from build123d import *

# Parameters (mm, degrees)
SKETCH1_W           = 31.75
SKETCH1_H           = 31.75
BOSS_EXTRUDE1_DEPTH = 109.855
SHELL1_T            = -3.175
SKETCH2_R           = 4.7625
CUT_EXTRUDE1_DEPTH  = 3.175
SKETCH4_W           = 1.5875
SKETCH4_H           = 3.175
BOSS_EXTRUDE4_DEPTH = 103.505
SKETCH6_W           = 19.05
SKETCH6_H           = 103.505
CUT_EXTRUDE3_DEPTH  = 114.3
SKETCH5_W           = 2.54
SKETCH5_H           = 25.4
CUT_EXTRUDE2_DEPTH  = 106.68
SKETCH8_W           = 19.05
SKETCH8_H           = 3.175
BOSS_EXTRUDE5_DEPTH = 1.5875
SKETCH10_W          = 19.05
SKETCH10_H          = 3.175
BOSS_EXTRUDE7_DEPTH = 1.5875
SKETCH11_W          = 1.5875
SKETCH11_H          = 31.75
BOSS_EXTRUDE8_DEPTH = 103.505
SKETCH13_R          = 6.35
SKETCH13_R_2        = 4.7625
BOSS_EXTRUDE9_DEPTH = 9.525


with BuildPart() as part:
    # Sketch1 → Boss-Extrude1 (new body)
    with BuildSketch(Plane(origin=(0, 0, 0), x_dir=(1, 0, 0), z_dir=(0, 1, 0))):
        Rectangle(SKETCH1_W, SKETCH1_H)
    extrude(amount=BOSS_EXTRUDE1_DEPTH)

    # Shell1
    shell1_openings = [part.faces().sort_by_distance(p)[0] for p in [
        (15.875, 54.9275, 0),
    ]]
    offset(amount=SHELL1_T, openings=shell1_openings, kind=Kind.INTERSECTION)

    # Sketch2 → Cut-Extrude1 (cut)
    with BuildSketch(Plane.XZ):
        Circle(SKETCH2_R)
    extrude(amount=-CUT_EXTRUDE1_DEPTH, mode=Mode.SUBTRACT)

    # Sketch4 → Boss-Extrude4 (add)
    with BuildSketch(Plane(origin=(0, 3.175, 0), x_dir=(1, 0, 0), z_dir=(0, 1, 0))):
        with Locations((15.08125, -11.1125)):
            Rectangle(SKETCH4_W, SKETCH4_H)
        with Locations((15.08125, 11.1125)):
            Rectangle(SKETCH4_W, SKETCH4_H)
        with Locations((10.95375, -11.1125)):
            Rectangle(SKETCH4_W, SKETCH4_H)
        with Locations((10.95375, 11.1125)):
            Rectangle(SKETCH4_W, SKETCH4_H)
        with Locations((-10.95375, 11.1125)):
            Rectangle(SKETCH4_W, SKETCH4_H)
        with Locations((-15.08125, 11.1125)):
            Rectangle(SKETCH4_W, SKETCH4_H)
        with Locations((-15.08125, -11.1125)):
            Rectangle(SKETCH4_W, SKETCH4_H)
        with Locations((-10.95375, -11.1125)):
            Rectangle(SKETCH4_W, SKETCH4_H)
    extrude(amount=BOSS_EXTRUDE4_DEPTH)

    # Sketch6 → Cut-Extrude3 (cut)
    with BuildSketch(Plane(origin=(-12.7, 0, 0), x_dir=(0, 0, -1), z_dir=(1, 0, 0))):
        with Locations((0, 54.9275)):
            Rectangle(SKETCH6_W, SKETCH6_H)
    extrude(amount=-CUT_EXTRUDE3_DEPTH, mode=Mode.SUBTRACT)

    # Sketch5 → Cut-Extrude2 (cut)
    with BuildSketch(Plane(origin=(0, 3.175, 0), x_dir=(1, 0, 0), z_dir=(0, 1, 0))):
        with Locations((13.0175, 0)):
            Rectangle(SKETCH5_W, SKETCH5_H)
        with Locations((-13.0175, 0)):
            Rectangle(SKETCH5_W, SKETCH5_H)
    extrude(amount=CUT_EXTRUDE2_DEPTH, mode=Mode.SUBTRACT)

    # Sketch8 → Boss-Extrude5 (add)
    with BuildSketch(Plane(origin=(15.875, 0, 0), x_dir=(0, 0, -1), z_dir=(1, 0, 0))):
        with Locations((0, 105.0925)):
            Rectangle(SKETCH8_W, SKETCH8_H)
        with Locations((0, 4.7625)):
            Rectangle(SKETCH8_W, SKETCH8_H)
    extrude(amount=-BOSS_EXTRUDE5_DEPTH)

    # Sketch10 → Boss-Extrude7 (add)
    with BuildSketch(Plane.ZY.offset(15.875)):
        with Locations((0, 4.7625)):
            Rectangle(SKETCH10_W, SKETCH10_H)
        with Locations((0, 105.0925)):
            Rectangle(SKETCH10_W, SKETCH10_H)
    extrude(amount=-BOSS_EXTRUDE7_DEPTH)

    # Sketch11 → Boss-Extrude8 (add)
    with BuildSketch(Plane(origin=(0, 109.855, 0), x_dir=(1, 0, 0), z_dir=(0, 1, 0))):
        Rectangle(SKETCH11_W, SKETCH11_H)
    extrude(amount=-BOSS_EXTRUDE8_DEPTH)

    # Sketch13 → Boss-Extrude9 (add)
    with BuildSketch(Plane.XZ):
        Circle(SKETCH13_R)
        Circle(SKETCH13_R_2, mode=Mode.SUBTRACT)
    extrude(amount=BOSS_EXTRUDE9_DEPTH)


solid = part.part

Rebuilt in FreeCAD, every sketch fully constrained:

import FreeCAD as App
import Part
import Sketcher
Q = App.Units.Quantity


def faces_at(feature, points):
    """Names of the faces that lie closest to the given points."""
    faces = feature.Shape.Faces
    near = lambda p: min(range(len(faces)), key=lambda i: faces[i].distToShape(Part.Vertex(*p))[0])
    return sorted({f"Face{near(p) + 1}" for p in points})

doc = App.newDocument("Part")
body = doc.addObject("PartDesign::Body", "Body")

sketch1 = body.newObject("Sketcher::SketchObject", "Sketch")
sketch1.AttachmentSupport = (doc.getObject("XZ_Plane"), [""])
sketch1.MapMode = "FlatFace"
sketch1.addGeometry(Part.LineSegment(App.Vector(-16, -16, 0), App.Vector(-16, 16, 0)), False)
sketch1.addGeometry(Part.LineSegment(App.Vector(-16, 16, 0), App.Vector(16, 16, 0)), False)
sketch1.addGeometry(Part.LineSegment(App.Vector(16, 16, 0), App.Vector(16, -16, 0)), False)
sketch1.addGeometry(Part.LineSegment(App.Vector(16, -16, 0), App.Vector(-16, -16, 0)), False)
sketch1.addConstraint(Sketcher.Constraint("Coincident", 0, 2, 1, 1))
sketch1.addConstraint(Sketcher.Constraint("Coincident", 1, 2, 2, 1))
sketch1.addConstraint(Sketcher.Constraint("Coincident", 2, 2, 3, 1))
sketch1.addConstraint(Sketcher.Constraint("Coincident", 3, 2, 0, 1))
sketch1.addConstraint(Sketcher.Constraint("Vertical", 0))
sketch1.addConstraint(Sketcher.Constraint("Horizontal", 1))
sketch1.addConstraint(Sketcher.Constraint("Vertical", 2))
sketch1.addConstraint(Sketcher.Constraint("Horizontal", 3))
sketch1.addConstraint(Sketcher.Constraint("Symmetric", 0, 2, 2, 2, -1, 1))
sketch1.addConstraint(Sketcher.Constraint("Equal", 3, 0))
sketch1.addConstraint(Sketcher.Constraint("DistanceX", 1, 1, 1, 2, Q("1.25 in")))
pad1 = body.newObject("PartDesign::Pad", "Pad")
pad1.Profile = sketch1
pad1.Length = Q("4.325 in")
pad1.Reversed = True
doc.recompute()

thickness = body.newObject("PartDesign::Thickness", "Thickness")
thickness.Base = (pad1, faces_at(pad1, [(15.875, 54.928, 0)]))
thickness.Value = Q("0.125 in")
thickness.Reversed = True
thickness.Join = "Intersection"

sketch2 = body.newObject("Sketcher::SketchObject", "Sketch001")
sketch2.AttachmentSupport = (doc.getObject("XZ_Plane"), [""])
sketch2.MapMode = "FlatFace"
sketch2.addGeometry(Part.Circle(App.Vector(0, 0, 0), App.Vector(0, 0, 1), 4.8), False)
sketch2.addConstraint(Sketcher.Constraint("Coincident", 0, 3, -1, 1))
sketch2.addConstraint(Sketcher.Constraint("Diameter", 0, Q("0.375 in")))
pocket1 = body.newObject("PartDesign::Pocket", "Pocket")
pocket1.Profile = sketch2
pocket1.Length = Q("0.125 in")

sketch3 = body.newObject("Sketcher::SketchObject", "Sketch002")
sketch3.AttachmentSupport = (doc.getObject("XZ_Plane"), [""])
sketch3.MapMode = "FlatFace"
sketch3.AttachmentOffset = App.Placement(App.Vector(0, 0, -0.125 * 25.4), App.Rotation())
sketch3.addGeometry(Part.LineSegment(App.Vector(14.3, 9.5, 0), App.Vector(14.3, 12.7, 0)), False)
sketch3.addGeometry(Part.LineSegment(App.Vector(14.3, 12.7, 0), App.Vector(15.9, 12.7, 0)), False)
sketch3.addGeometry(Part.LineSegment(App.Vector(15.9, 12.7, 0), App.Vector(15.9, 9.5, 0)), False)
sketch3.addGeometry(Part.LineSegment(App.Vector(15.9, 9.5, 0), App.Vector(14.3, 9.5, 0)), False)
sketch3.addGeometry(Part.LineSegment(App.Vector(14.3, -12.7, 0), App.Vector(14.3, -9.5, 0)), False)
sketch3.addGeometry(Part.LineSegment(App.Vector(14.3, -9.5, 0), App.Vector(15.9, -9.5, 0)), False)
sketch3.addGeometry(Part.LineSegment(App.Vector(15.9, -9.5, 0), App.Vector(15.9, -12.7, 0)), False)
sketch3.addGeometry(Part.LineSegment(App.Vector(15.9, -12.7, 0), App.Vector(14.3, -12.7, 0)), False)
sketch3.addGeometry(Part.LineSegment(App.Vector(10.2, 9.5, 0), App.Vector(10.2, 12.7, 0)), False)
sketch3.addGeometry(Part.LineSegment(App.Vector(10.2, 12.7, 0), App.Vector(11.7, 12.7, 0)), False)
sketch3.addGeometry(Part.LineSegment(App.Vector(11.7, 12.7, 0), App.Vector(11.7, 9.5, 0)), False)
sketch3.addGeometry(Part.LineSegment(App.Vector(11.7, 9.5, 0), App.Vector(10.2, 9.5, 0)), False)
sketch3.addGeometry(Part.LineSegment(App.Vector(10.2, -12.7, 0), App.Vector(10.2, -9.5, 0)), False)
sketch3.addGeometry(Part.LineSegment(App.Vector(10.2, -9.5, 0), App.Vector(11.7, -9.5, 0)), False)
sketch3.addGeometry(Part.LineSegment(App.Vector(11.7, -9.5, 0), App.Vector(11.7, -12.7, 0)), False)
sketch3.addGeometry(Part.LineSegment(App.Vector(11.7, -12.7, 0), App.Vector(10.2, -12.7, 0)), False)
sketch3.addGeometry(Part.LineSegment(App.Vector(-11.7, -12.7, 0), App.Vector(-11.7, -9.5, 0)), False)
sketch3.addGeometry(Part.LineSegment(App.Vector(-11.7, -9.5, 0), App.Vector(-10.2, -9.5, 0)), False)
sketch3.addGeometry(Part.LineSegment(App.Vector(-10.2, -9.5, 0), App.Vector(-10.2, -12.7, 0)), False)
sketch3.addGeometry(Part.LineSegment(App.Vector(-10.2, -12.7, 0), App.Vector(-11.7, -12.7, 0)), False)
sketch3.addGeometry(Part.LineSegment(App.Vector(-15.9, -12.7, 0), App.Vector(-15.9, -9.5, 0)), False)
sketch3.addGeometry(Part.LineSegment(App.Vector(-15.9, -9.5, 0), App.Vector(-14.3, -9.5, 0)), False)
sketch3.addGeometry(Part.LineSegment(App.Vector(-14.3, -9.5, 0), App.Vector(-14.3, -12.7, 0)), False)
sketch3.addGeometry(Part.LineSegment(App.Vector(-14.3, -12.7, 0), App.Vector(-15.9, -12.7, 0)), False)
sketch3.addGeometry(Part.LineSegment(App.Vector(-15.9, 9.5, 0), App.Vector(-15.9, 12.7, 0)), False)
sketch3.addGeometry(Part.LineSegment(App.Vector(-15.9, 12.7, 0), App.Vector(-14.3, 12.7, 0)), False)
sketch3.addGeometry(Part.LineSegment(App.Vector(-14.3, 12.7, 0), App.Vector(-14.3, 9.5, 0)), False)
sketch3.addGeometry(Part.LineSegment(App.Vector(-14.3, 9.5, 0), App.Vector(-15.9, 9.5, 0)), False)
sketch3.addGeometry(Part.LineSegment(App.Vector(-11.7, 9.5, 0), App.Vector(-11.7, 12.7, 0)), False)
sketch3.addGeometry(Part.LineSegment(App.Vector(-11.7, 12.7, 0), App.Vector(-10.2, 12.7, 0)), False)
sketch3.addGeometry(Part.LineSegment(App.Vector(-10.2, 12.7, 0), App.Vector(-10.2, 9.5, 0)), False)
sketch3.addGeometry(Part.LineSegment(App.Vector(-10.2, 9.5, 0), App.Vector(-11.7, 9.5, 0)), False)
sketch3.addConstraint(Sketcher.Constraint("Coincident", 0, 2, 1, 1))
sketch3.addConstraint(Sketcher.Constraint("Coincident", 1, 2, 2, 1))
sketch3.addConstraint(Sketcher.Constraint("Coincident", 2, 2, 3, 1))
sketch3.addConstraint(Sketcher.Constraint("Coincident", 3, 2, 0, 1))
sketch3.addConstraint(Sketcher.Constraint("Coincident", 4, 2, 5, 1))
sketch3.addConstraint(Sketcher.Constraint("Coincident", 5, 2, 6, 1))
sketch3.addConstraint(Sketcher.Constraint("Coincident", 6, 2, 7, 1))
sketch3.addConstraint(Sketcher.Constraint("Coincident", 7, 2, 4, 1))
sketch3.addConstraint(Sketcher.Constraint("Coincident", 8, 2, 9, 1))
sketch3.addConstraint(Sketcher.Constraint("Coincident", 9, 2, 10, 1))
sketch3.addConstraint(Sketcher.Constraint("Coincident", 10, 2, 11, 1))
sketch3.addConstraint(Sketcher.Constraint("Coincident", 11, 2, 8, 1))
sketch3.addConstraint(Sketcher.Constraint("Coincident", 12, 2, 13, 1))
sketch3.addConstraint(Sketcher.Constraint("Coincident", 13, 2, 14, 1))
sketch3.addConstraint(Sketcher.Constraint("Coincident", 14, 2, 15, 1))
sketch3.addConstraint(Sketcher.Constraint("Coincident", 15, 2, 12, 1))
sketch3.addConstraint(Sketcher.Constraint("Coincident", 16, 2, 17, 1))
sketch3.addConstraint(Sketcher.Constraint("Coincident", 17, 2, 18, 1))
sketch3.addConstraint(Sketcher.Constraint("Coincident", 18, 2, 19, 1))
sketch3.addConstraint(Sketcher.Constraint("Coincident", 19, 2, 16, 1))
sketch3.addConstraint(Sketcher.Constraint("Coincident", 20, 2, 21, 1))
sketch3.addConstraint(Sketcher.Constraint("Coincident", 21, 2, 22, 1))
sketch3.addConstraint(Sketcher.Constraint("Coincident", 22, 2, 23, 1))
sketch3.addConstraint(Sketcher.Constraint("Coincident", 23, 2, 20, 1))
sketch3.addConstraint(Sketcher.Constraint("Coincident", 24, 2, 25, 1))
sketch3.addConstraint(Sketcher.Constraint("Coincident", 25, 2, 26, 1))
sketch3.addConstraint(Sketcher.Constraint("Coincident", 26, 2, 27, 1))
sketch3.addConstraint(Sketcher.Constraint("Coincident", 27, 2, 24, 1))
sketch3.addConstraint(Sketcher.Constraint("Coincident", 28, 2, 29, 1))
sketch3.addConstraint(Sketcher.Constraint("Coincident", 29, 2, 30, 1))
sketch3.addConstraint(Sketcher.Constraint("Coincident", 30, 2, 31, 1))
sketch3.addConstraint(Sketcher.Constraint("Coincident", 31, 2, 28, 1))
sketch3.addConstraint(Sketcher.Constraint("Vertical", 0))
sketch3.addConstraint(Sketcher.Constraint("Horizontal", 1))
sketch3.addConstraint(Sketcher.Constraint("Vertical", 2))
sketch3.addConstraint(Sketcher.Constraint("Horizontal", 3))
sketch3.addConstraint(Sketcher.Constraint("Vertical", 4))
sketch3.addConstraint(Sketcher.Constraint("Horizontal", 5))
sketch3.addConstraint(Sketcher.Constraint("Vertical", 6))
sketch3.addConstraint(Sketcher.Constraint("Horizontal", 7))
sketch3.addConstraint(Sketcher.Constraint("Vertical", 8))
sketch3.addConstraint(Sketcher.Constraint("Horizontal", 9))
sketch3.addConstraint(Sketcher.Constraint("Vertical", 10))
sketch3.addConstraint(Sketcher.Constraint("Horizontal", 11))
sketch3.addConstraint(Sketcher.Constraint("Vertical", 12))
sketch3.addConstraint(Sketcher.Constraint("Horizontal", 13))
sketch3.addConstraint(Sketcher.Constraint("Vertical", 14))
sketch3.addConstraint(Sketcher.Constraint("Horizontal", 15))
sketch3.addConstraint(Sketcher.Constraint("Vertical", 16))
sketch3.addConstraint(Sketcher.Constraint("Horizontal", 17))
sketch3.addConstraint(Sketcher.Constraint("Vertical", 18))
sketch3.addConstraint(Sketcher.Constraint("Horizontal", 19))
sketch3.addConstraint(Sketcher.Constraint("Vertical", 20))
sketch3.addConstraint(Sketcher.Constraint("Horizontal", 21))
sketch3.addConstraint(Sketcher.Constraint("Vertical", 22))
sketch3.addConstraint(Sketcher.Constraint("Horizontal", 23))
sketch3.addConstraint(Sketcher.Constraint("Vertical", 24))
sketch3.addConstraint(Sketcher.Constraint("Horizontal", 25))
sketch3.addConstraint(Sketcher.Constraint("Vertical", 26))
sketch3.addConstraint(Sketcher.Constraint("Horizontal", 27))
sketch3.addConstraint(Sketcher.Constraint("Vertical", 28))
sketch3.addConstraint(Sketcher.Constraint("Horizontal", 29))
sketch3.addConstraint(Sketcher.Constraint("Vertical", 30))
sketch3.addConstraint(Sketcher.Constraint("Horizontal", 31))
sketch3.addConstraint(Sketcher.Constraint("Symmetric", 10, 2, 16, 2, -1, 1))
sketch3.addConstraint(Sketcher.Constraint("Symmetric", 8, 2, 18, 2, -1, 1))
sketch3.addConstraint(Sketcher.Constraint("Symmetric", 2, 2, 20, 2, -1, 1))
sketch3.addConstraint(Sketcher.Constraint("Symmetric", 0, 2, 22, 2, -1, 1))
sketch3.addConstraint(Sketcher.Constraint("Symmetric", 6, 2, 24, 2, -1, 1))
sketch3.addConstraint(Sketcher.Constraint("Symmetric", 4, 2, 26, 2, -1, 1))
sketch3.addConstraint(Sketcher.Constraint("Symmetric", 14, 2, 28, 2, -1, 1))
sketch3.addConstraint(Sketcher.Constraint("Symmetric", 12, 2, 30, 2, -1, 1))
sketch3.addConstraint(Sketcher.Constraint("Symmetric", 13, 2, 16, 2, -2))
sketch3.addConstraint(Sketcher.Constraint("Symmetric", 15, 2, 18, 2, -2))
sketch3.addConstraint(Sketcher.Constraint("Symmetric", 5, 2, 20, 2, -2))
sketch3.addConstraint(Sketcher.Constraint("Symmetric", 7, 2, 22, 2, -2))
sketch3.addConstraint(Sketcher.Constraint("Horizontal", 1, 2, 8, 2))
sketch3.addConstraint(Sketcher.Constraint("Horizontal", 3, 2, 10, 2))
sketch3.addConstraint(Sketcher.Constraint("Equal", 7, 9))
sketch3.addConstraint(Sketcher.Constraint("DistanceY", 6, 2, 1, 2, Q("1 in")))
sketch3.addConstraint(Sketcher.Constraint("DistanceX", -1, 1, 8, 2, Q("0.4 in")))
sketch3.addConstraint(Sketcher.Constraint("DistanceX", 9, 2, 0, 2, Q("0.1 in")))
sketch3.addConstraint(Sketcher.Constraint("DistanceX", 1, 1, 1, 2, Q("0.0625 in")))
sketch3.addConstraint(Sketcher.Constraint("DistanceY", 0, 1, 0, 2, Q("0.125 in")))
pad2 = body.newObject("PartDesign::Pad", "Pad001")
pad2.Profile = sketch3
pad2.Length = Q("4.075 in")
pad2.Reversed = True

sketch4 = body.newObject("Sketcher::SketchObject", "Sketch003")
sketch4.AttachmentSupport = (doc.getObject("YZ_Plane"), [""])
sketch4.MapMode = "FlatFace"
sketch4.AttachmentOffset = App.Placement(App.Vector(0, 0, -0.5 * 25.4), App.Rotation())
sketch4.addGeometry(Part.LineSegment(App.Vector(107, 10, 0), App.Vector(3, 10, 0)), False)
sketch4.addGeometry(Part.LineSegment(App.Vector(3, 10, 0), App.Vector(3, -10, 0)), False)
sketch4.addGeometry(Part.LineSegment(App.Vector(3, -10, 0), App.Vector(107, -10, 0)), False)
sketch4.addGeometry(Part.LineSegment(App.Vector(107, -10, 0), App.Vector(107, 10, 0)), False)
sketch4.addConstraint(Sketcher.Constraint("Coincident", 0, 2, 1, 1))
sketch4.addConstraint(Sketcher.Constraint("Coincident", 1, 2, 2, 1))
sketch4.addConstraint(Sketcher.Constraint("Coincident", 2, 2, 3, 1))
sketch4.addConstraint(Sketcher.Constraint("Coincident", 3, 2, 0, 1))
sketch4.addConstraint(Sketcher.Constraint("Horizontal", 0))
sketch4.addConstraint(Sketcher.Constraint("Vertical", 1))
sketch4.addConstraint(Sketcher.Constraint("Horizontal", 2))
sketch4.addConstraint(Sketcher.Constraint("Vertical", 3))
sketch4.addConstraint(Sketcher.Constraint("DistanceY", 1, 2, 1, 1, Q("0.75 in")))
sketch4.addConstraint(Sketcher.Constraint("DistanceX", -1, 1, 2, 2, Q("4.2 in")))
sketch4.addConstraint(Sketcher.Constraint("DistanceX", 0, 2, 0, 1, Q("4.075 in")))
sketch4.addConstraint(Sketcher.Constraint("DistanceY", -1, 1, 0, 2, Q("0.375 in")))
pocket2 = body.newObject("PartDesign::Pocket", "Pocket001")
pocket2.Profile = sketch4
pocket2.Length = Q("4.5 in")

sketch5 = body.newObject("Sketcher::SketchObject", "Sketch004")
sketch5.AttachmentSupport = (doc.getObject("XZ_Plane"), [""])
sketch5.MapMode = "FlatFace"
sketch5.AttachmentOffset = App.Placement(App.Vector(0, 0, -0.125 * 25.4), App.Rotation())
sketch5.addGeometry(Part.LineSegment(App.Vector(11.7, -12.7, 0), App.Vector(11.7, 12.7, 0)), False)
sketch5.addGeometry(Part.LineSegment(App.Vector(11.7, 12.7, 0), App.Vector(14.3, 12.7, 0)), False)
sketch5.addGeometry(Part.LineSegment(App.Vector(14.3, 12.7, 0), App.Vector(14.3, -12.7, 0)), False)
sketch5.addGeometry(Part.LineSegment(App.Vector(14.3, -12.7, 0), App.Vector(11.7, -12.7, 0)), False)
sketch5.addGeometry(Part.LineSegment(App.Vector(-14.3, -12.7, 0), App.Vector(-14.3, 12.7, 0)), False)
sketch5.addGeometry(Part.LineSegment(App.Vector(-14.3, 12.7, 0), App.Vector(-11.7, 12.7, 0)), False)
sketch5.addGeometry(Part.LineSegment(App.Vector(-11.7, 12.7, 0), App.Vector(-11.7, -12.7, 0)), False)
sketch5.addGeometry(Part.LineSegment(App.Vector(-11.7, -12.7, 0), App.Vector(-14.3, -12.7, 0)), False)
sketch5.addConstraint(Sketcher.Constraint("Coincident", 0, 2, 1, 1))
sketch5.addConstraint(Sketcher.Constraint("Coincident", 1, 2, 2, 1))
sketch5.addConstraint(Sketcher.Constraint("Coincident", 2, 2, 3, 1))
sketch5.addConstraint(Sketcher.Constraint("Coincident", 3, 2, 0, 1))
sketch5.addConstraint(Sketcher.Constraint("Coincident", 4, 2, 5, 1))
sketch5.addConstraint(Sketcher.Constraint("Coincident", 5, 2, 6, 1))
sketch5.addConstraint(Sketcher.Constraint("Coincident", 6, 2, 7, 1))
sketch5.addConstraint(Sketcher.Constraint("Coincident", 7, 2, 4, 1))
sketch5.addConstraint(Sketcher.Constraint("Vertical", 0))
sketch5.addConstraint(Sketcher.Constraint("Horizontal", 1))
sketch5.addConstraint(Sketcher.Constraint("Vertical", 2))
sketch5.addConstraint(Sketcher.Constraint("Horizontal", 3))
sketch5.addConstraint(Sketcher.Constraint("Vertical", 4))
sketch5.addConstraint(Sketcher.Constraint("Horizontal", 5))
sketch5.addConstraint(Sketcher.Constraint("Vertical", 6))
sketch5.addConstraint(Sketcher.Constraint("Horizontal", 7))
sketch5.addConstraint(Sketcher.Constraint("Symmetric", 2, 2, 4, 2, -1, 1))
sketch5.addConstraint(Sketcher.Constraint("Symmetric", 0, 2, 6, 2, -1, 1))
sketch5.addConstraint(Sketcher.Constraint("Horizontal", 1, 2, 4, 2))
sketch5.addConstraint(Sketcher.Constraint("DistanceY", 0, 1, 0, 2, Q("1 in")))
sketch5.addConstraint(Sketcher.Constraint("DistanceX", 1, 1, 1, 2, Q("0.1 in")))
sketch5.addConstraint(Sketcher.Constraint("DistanceX", -1, 1, 1, 2, Q("0.5625 in")))
pocket3 = body.newObject("PartDesign::Pocket", "Pocket002")
pocket3.Profile = sketch5
pocket3.Length = Q("4.2 in")

sketch6 = body.newObject("Sketcher::SketchObject", "Sketch005")
sketch6.AttachmentSupport = (doc.getObject("YZ_Plane"), [""])
sketch6.MapMode = "FlatFace"
sketch6.AttachmentOffset = App.Placement(App.Vector(0, 0, 0.625 * 25.4), App.Rotation())
sketch6.addGeometry(Part.LineSegment(App.Vector(106.7, 9.5, 0), App.Vector(103.5, 9.5, 0)), False)
sketch6.addGeometry(Part.LineSegment(App.Vector(103.5, 9.5, 0), App.Vector(103.5, -9.5, 0)), False)
sketch6.addGeometry(Part.LineSegment(App.Vector(103.5, -9.5, 0), App.Vector(106.7, -9.5, 0)), False)
sketch6.addGeometry(Part.LineSegment(App.Vector(106.7, -9.5, 0), App.Vector(106.7, 9.5, 0)), False)
sketch6.addGeometry(Part.LineSegment(App.Vector(6.3, 9.5, 0), App.Vector(3.2, 9.5, 0)), False)
sketch6.addGeometry(Part.LineSegment(App.Vector(3.2, 9.5, 0), App.Vector(3.2, -9.5, 0)), False)
sketch6.addGeometry(Part.LineSegment(App.Vector(3.2, -9.5, 0), App.Vector(6.3, -9.5, 0)), False)
sketch6.addGeometry(Part.LineSegment(App.Vector(6.3, -9.5, 0), App.Vector(6.3, 9.5, 0)), False)
sketch6.addConstraint(Sketcher.Constraint("Coincident", 0, 2, 1, 1))
sketch6.addConstraint(Sketcher.Constraint("Coincident", 1, 2, 2, 1))
sketch6.addConstraint(Sketcher.Constraint("Coincident", 2, 2, 3, 1))
sketch6.addConstraint(Sketcher.Constraint("Coincident", 3, 2, 0, 1))
sketch6.addConstraint(Sketcher.Constraint("Coincident", 4, 2, 5, 1))
sketch6.addConstraint(Sketcher.Constraint("Coincident", 5, 2, 6, 1))
sketch6.addConstraint(Sketcher.Constraint("Coincident", 6, 2, 7, 1))
sketch6.addConstraint(Sketcher.Constraint("Coincident", 7, 2, 4, 1))
sketch6.addConstraint(Sketcher.Constraint("Horizontal", 0))
sketch6.addConstraint(Sketcher.Constraint("Vertical", 1))
sketch6.addConstraint(Sketcher.Constraint("Horizontal", 2))
sketch6.addConstraint(Sketcher.Constraint("Vertical", 3))
sketch6.addConstraint(Sketcher.Constraint("Horizontal", 4))
sketch6.addConstraint(Sketcher.Constraint("Vertical", 5))
sketch6.addConstraint(Sketcher.Constraint("Horizontal", 6))
sketch6.addConstraint(Sketcher.Constraint("Vertical", 7))
sketch6.addConstraint(Sketcher.Constraint("Horizontal", 3, 2, 4, 2))
sketch6.addConstraint(Sketcher.Constraint("Horizontal", 2, 2, 5, 2))
sketch6.addConstraint(Sketcher.Constraint("Equal", 2, 4))
sketch6.addConstraint(Sketcher.Constraint("DistanceY", 1, 2, 1, 1, Q("0.75 in")))
sketch6.addConstraint(Sketcher.Constraint("DistanceX", -1, 1, 2, 2, Q("4.2 in")))
sketch6.addConstraint(Sketcher.Constraint("DistanceX", 0, 2, 0, 1, Q("0.125 in")))
sketch6.addConstraint(Sketcher.Constraint("DistanceX", -1, 1, 6, 2, Q("0.25 in")))
sketch6.addConstraint(Sketcher.Constraint("DistanceY", -1, 1, 0, 2, Q("0.375 in")))
pad3 = body.newObject("PartDesign::Pad", "Pad002")
pad3.Profile = sketch6
pad3.Length = Q("0.0625 in")
pad3.Reversed = True

sketch7 = body.newObject("Sketcher::SketchObject", "Sketch006")
sketch7.AttachmentSupport = (doc.getObject("YZ_Plane"), [""])
sketch7.MapMode = "FlatFace"
sketch7.AttachmentOffset = App.Placement(App.Vector(0, 0, -0.625 * 25.4), App.Rotation())
sketch7.addGeometry(Part.LineSegment(App.Vector(6.3, -9.5, 0), App.Vector(3.2, -9.5, 0)), False)
sketch7.addGeometry(Part.LineSegment(App.Vector(3.2, -9.5, 0), App.Vector(3.2, 9.5, 0)), False)
sketch7.addGeometry(Part.LineSegment(App.Vector(3.2, 9.5, 0), App.Vector(6.3, 9.5, 0)), False)
sketch7.addGeometry(Part.LineSegment(App.Vector(6.3, 9.5, 0), App.Vector(6.3, -9.5, 0)), False)
sketch7.addGeometry(Part.LineSegment(App.Vector(106.7, -9.5, 0), App.Vector(103.5, -9.5, 0)), False)
sketch7.addGeometry(Part.LineSegment(App.Vector(103.5, -9.5, 0), App.Vector(103.5, 9.5, 0)), False)
sketch7.addGeometry(Part.LineSegment(App.Vector(103.5, 9.5, 0), App.Vector(106.7, 9.5, 0)), False)
sketch7.addGeometry(Part.LineSegment(App.Vector(106.7, 9.5, 0), App.Vector(106.7, -9.5, 0)), False)
sketch7.addConstraint(Sketcher.Constraint("Coincident", 0, 2, 1, 1))
sketch7.addConstraint(Sketcher.Constraint("Coincident", 1, 2, 2, 1))
sketch7.addConstraint(Sketcher.Constraint("Coincident", 2, 2, 3, 1))
sketch7.addConstraint(Sketcher.Constraint("Coincident", 3, 2, 0, 1))
sketch7.addConstraint(Sketcher.Constraint("Coincident", 4, 2, 5, 1))
sketch7.addConstraint(Sketcher.Constraint("Coincident", 5, 2, 6, 1))
sketch7.addConstraint(Sketcher.Constraint("Coincident", 6, 2, 7, 1))
sketch7.addConstraint(Sketcher.Constraint("Coincident", 7, 2, 4, 1))
sketch7.addConstraint(Sketcher.Constraint("Horizontal", 0))
sketch7.addConstraint(Sketcher.Constraint("Vertical", 1))
sketch7.addConstraint(Sketcher.Constraint("Horizontal", 2))
sketch7.addConstraint(Sketcher.Constraint("Vertical", 3))
sketch7.addConstraint(Sketcher.Constraint("Horizontal", 4))
sketch7.addConstraint(Sketcher.Constraint("Vertical", 5))
sketch7.addConstraint(Sketcher.Constraint("Horizontal", 6))
sketch7.addConstraint(Sketcher.Constraint("Vertical", 7))
sketch7.addConstraint(Sketcher.Constraint("Horizontal", 3, 2, 4, 2))
sketch7.addConstraint(Sketcher.Constraint("Horizontal", 2, 2, 5, 2))
sketch7.addConstraint(Sketcher.Constraint("Equal", 2, 4))
sketch7.addConstraint(Sketcher.Constraint("DistanceY", 1, 1, 1, 2, Q("0.75 in")))
sketch7.addConstraint(Sketcher.Constraint("DistanceX", -1, 1, 6, 2, Q("4.2 in")))
sketch7.addConstraint(Sketcher.Constraint("DistanceX", 0, 2, 0, 1, Q("0.125 in")))
sketch7.addConstraint(Sketcher.Constraint("DistanceX", -1, 1, 2, 2, Q("0.25 in")))
sketch7.addConstraint(Sketcher.Constraint("DistanceY", 0, 2, -1, 1, Q("0.375 in")))
pad4 = body.newObject("PartDesign::Pad", "Pad003")
pad4.Profile = sketch7
pad4.Length = Q("0.0625 in")

sketch8 = body.newObject("Sketcher::SketchObject", "Sketch007")
sketch8.AttachmentSupport = (doc.getObject("XZ_Plane"), [""])
sketch8.MapMode = "FlatFace"
sketch8.AttachmentOffset = App.Placement(App.Vector(0, 0, -4.325 * 25.4), App.Rotation())
sketch8.addGeometry(Part.LineSegment(App.Vector(-0.8, -15.9, 0), App.Vector(-0.8, 15.9, 0)), False)
sketch8.addGeometry(Part.LineSegment(App.Vector(-0.8, 15.9, 0), App.Vector(0.8, 15.9, 0)), False)
sketch8.addGeometry(Part.LineSegment(App.Vector(0.8, 15.9, 0), App.Vector(0.8, -15.9, 0)), False)
sketch8.addGeometry(Part.LineSegment(App.Vector(0.8, -15.9, 0), App.Vector(-0.8, -15.9, 0)), False)
sketch8.addConstraint(Sketcher.Constraint("Coincident", 0, 2, 1, 1))
sketch8.addConstraint(Sketcher.Constraint("Coincident", 1, 2, 2, 1))
sketch8.addConstraint(Sketcher.Constraint("Coincident", 2, 2, 3, 1))
sketch8.addConstraint(Sketcher.Constraint("Coincident", 3, 2, 0, 1))
sketch8.addConstraint(Sketcher.Constraint("Vertical", 0))
sketch8.addConstraint(Sketcher.Constraint("Horizontal", 1))
sketch8.addConstraint(Sketcher.Constraint("Vertical", 2))
sketch8.addConstraint(Sketcher.Constraint("Horizontal", 3))
sketch8.addConstraint(Sketcher.Constraint("Symmetric", 0, 2, 2, 2, -1, 1))
sketch8.addConstraint(Sketcher.Constraint("DistanceY", 0, 1, 0, 2, Q("1.25 in")))
sketch8.addConstraint(Sketcher.Constraint("DistanceX", 1, 1, 1, 2, Q("0.0625 in")))
pad5 = body.newObject("PartDesign::Pad", "Pad004")
pad5.Profile = sketch8
pad5.Length = Q("4.075 in")

sketch9 = body.newObject("Sketcher::SketchObject", "Sketch008")
sketch9.AttachmentSupport = (doc.getObject("XZ_Plane"), [""])
sketch9.MapMode = "FlatFace"
sketch9.addGeometry(Part.Circle(App.Vector(0, 0, 0), App.Vector(0, 0, 1), 6.3), False)
sketch9.addGeometry(Part.Circle(App.Vector(0, 0, 0), App.Vector(0, 0, 1), 4.8), False)
sketch9.addConstraint(Sketcher.Constraint("Coincident", 0, 3, -1, 1))
sketch9.addConstraint(Sketcher.Constraint("Coincident", 1, 3, -1, 1))
sketch9.addConstraint(Sketcher.Constraint("Diameter", 0, Q("0.5 in")))
sketch9.addConstraint(Sketcher.Constraint("Diameter", 1, Q("0.375 in")))
pad6 = body.newObject("PartDesign::Pad", "Pad005")
pad6.Profile = sketch9
pad6.Length = Q("0.375 in")

doc.recompute()
